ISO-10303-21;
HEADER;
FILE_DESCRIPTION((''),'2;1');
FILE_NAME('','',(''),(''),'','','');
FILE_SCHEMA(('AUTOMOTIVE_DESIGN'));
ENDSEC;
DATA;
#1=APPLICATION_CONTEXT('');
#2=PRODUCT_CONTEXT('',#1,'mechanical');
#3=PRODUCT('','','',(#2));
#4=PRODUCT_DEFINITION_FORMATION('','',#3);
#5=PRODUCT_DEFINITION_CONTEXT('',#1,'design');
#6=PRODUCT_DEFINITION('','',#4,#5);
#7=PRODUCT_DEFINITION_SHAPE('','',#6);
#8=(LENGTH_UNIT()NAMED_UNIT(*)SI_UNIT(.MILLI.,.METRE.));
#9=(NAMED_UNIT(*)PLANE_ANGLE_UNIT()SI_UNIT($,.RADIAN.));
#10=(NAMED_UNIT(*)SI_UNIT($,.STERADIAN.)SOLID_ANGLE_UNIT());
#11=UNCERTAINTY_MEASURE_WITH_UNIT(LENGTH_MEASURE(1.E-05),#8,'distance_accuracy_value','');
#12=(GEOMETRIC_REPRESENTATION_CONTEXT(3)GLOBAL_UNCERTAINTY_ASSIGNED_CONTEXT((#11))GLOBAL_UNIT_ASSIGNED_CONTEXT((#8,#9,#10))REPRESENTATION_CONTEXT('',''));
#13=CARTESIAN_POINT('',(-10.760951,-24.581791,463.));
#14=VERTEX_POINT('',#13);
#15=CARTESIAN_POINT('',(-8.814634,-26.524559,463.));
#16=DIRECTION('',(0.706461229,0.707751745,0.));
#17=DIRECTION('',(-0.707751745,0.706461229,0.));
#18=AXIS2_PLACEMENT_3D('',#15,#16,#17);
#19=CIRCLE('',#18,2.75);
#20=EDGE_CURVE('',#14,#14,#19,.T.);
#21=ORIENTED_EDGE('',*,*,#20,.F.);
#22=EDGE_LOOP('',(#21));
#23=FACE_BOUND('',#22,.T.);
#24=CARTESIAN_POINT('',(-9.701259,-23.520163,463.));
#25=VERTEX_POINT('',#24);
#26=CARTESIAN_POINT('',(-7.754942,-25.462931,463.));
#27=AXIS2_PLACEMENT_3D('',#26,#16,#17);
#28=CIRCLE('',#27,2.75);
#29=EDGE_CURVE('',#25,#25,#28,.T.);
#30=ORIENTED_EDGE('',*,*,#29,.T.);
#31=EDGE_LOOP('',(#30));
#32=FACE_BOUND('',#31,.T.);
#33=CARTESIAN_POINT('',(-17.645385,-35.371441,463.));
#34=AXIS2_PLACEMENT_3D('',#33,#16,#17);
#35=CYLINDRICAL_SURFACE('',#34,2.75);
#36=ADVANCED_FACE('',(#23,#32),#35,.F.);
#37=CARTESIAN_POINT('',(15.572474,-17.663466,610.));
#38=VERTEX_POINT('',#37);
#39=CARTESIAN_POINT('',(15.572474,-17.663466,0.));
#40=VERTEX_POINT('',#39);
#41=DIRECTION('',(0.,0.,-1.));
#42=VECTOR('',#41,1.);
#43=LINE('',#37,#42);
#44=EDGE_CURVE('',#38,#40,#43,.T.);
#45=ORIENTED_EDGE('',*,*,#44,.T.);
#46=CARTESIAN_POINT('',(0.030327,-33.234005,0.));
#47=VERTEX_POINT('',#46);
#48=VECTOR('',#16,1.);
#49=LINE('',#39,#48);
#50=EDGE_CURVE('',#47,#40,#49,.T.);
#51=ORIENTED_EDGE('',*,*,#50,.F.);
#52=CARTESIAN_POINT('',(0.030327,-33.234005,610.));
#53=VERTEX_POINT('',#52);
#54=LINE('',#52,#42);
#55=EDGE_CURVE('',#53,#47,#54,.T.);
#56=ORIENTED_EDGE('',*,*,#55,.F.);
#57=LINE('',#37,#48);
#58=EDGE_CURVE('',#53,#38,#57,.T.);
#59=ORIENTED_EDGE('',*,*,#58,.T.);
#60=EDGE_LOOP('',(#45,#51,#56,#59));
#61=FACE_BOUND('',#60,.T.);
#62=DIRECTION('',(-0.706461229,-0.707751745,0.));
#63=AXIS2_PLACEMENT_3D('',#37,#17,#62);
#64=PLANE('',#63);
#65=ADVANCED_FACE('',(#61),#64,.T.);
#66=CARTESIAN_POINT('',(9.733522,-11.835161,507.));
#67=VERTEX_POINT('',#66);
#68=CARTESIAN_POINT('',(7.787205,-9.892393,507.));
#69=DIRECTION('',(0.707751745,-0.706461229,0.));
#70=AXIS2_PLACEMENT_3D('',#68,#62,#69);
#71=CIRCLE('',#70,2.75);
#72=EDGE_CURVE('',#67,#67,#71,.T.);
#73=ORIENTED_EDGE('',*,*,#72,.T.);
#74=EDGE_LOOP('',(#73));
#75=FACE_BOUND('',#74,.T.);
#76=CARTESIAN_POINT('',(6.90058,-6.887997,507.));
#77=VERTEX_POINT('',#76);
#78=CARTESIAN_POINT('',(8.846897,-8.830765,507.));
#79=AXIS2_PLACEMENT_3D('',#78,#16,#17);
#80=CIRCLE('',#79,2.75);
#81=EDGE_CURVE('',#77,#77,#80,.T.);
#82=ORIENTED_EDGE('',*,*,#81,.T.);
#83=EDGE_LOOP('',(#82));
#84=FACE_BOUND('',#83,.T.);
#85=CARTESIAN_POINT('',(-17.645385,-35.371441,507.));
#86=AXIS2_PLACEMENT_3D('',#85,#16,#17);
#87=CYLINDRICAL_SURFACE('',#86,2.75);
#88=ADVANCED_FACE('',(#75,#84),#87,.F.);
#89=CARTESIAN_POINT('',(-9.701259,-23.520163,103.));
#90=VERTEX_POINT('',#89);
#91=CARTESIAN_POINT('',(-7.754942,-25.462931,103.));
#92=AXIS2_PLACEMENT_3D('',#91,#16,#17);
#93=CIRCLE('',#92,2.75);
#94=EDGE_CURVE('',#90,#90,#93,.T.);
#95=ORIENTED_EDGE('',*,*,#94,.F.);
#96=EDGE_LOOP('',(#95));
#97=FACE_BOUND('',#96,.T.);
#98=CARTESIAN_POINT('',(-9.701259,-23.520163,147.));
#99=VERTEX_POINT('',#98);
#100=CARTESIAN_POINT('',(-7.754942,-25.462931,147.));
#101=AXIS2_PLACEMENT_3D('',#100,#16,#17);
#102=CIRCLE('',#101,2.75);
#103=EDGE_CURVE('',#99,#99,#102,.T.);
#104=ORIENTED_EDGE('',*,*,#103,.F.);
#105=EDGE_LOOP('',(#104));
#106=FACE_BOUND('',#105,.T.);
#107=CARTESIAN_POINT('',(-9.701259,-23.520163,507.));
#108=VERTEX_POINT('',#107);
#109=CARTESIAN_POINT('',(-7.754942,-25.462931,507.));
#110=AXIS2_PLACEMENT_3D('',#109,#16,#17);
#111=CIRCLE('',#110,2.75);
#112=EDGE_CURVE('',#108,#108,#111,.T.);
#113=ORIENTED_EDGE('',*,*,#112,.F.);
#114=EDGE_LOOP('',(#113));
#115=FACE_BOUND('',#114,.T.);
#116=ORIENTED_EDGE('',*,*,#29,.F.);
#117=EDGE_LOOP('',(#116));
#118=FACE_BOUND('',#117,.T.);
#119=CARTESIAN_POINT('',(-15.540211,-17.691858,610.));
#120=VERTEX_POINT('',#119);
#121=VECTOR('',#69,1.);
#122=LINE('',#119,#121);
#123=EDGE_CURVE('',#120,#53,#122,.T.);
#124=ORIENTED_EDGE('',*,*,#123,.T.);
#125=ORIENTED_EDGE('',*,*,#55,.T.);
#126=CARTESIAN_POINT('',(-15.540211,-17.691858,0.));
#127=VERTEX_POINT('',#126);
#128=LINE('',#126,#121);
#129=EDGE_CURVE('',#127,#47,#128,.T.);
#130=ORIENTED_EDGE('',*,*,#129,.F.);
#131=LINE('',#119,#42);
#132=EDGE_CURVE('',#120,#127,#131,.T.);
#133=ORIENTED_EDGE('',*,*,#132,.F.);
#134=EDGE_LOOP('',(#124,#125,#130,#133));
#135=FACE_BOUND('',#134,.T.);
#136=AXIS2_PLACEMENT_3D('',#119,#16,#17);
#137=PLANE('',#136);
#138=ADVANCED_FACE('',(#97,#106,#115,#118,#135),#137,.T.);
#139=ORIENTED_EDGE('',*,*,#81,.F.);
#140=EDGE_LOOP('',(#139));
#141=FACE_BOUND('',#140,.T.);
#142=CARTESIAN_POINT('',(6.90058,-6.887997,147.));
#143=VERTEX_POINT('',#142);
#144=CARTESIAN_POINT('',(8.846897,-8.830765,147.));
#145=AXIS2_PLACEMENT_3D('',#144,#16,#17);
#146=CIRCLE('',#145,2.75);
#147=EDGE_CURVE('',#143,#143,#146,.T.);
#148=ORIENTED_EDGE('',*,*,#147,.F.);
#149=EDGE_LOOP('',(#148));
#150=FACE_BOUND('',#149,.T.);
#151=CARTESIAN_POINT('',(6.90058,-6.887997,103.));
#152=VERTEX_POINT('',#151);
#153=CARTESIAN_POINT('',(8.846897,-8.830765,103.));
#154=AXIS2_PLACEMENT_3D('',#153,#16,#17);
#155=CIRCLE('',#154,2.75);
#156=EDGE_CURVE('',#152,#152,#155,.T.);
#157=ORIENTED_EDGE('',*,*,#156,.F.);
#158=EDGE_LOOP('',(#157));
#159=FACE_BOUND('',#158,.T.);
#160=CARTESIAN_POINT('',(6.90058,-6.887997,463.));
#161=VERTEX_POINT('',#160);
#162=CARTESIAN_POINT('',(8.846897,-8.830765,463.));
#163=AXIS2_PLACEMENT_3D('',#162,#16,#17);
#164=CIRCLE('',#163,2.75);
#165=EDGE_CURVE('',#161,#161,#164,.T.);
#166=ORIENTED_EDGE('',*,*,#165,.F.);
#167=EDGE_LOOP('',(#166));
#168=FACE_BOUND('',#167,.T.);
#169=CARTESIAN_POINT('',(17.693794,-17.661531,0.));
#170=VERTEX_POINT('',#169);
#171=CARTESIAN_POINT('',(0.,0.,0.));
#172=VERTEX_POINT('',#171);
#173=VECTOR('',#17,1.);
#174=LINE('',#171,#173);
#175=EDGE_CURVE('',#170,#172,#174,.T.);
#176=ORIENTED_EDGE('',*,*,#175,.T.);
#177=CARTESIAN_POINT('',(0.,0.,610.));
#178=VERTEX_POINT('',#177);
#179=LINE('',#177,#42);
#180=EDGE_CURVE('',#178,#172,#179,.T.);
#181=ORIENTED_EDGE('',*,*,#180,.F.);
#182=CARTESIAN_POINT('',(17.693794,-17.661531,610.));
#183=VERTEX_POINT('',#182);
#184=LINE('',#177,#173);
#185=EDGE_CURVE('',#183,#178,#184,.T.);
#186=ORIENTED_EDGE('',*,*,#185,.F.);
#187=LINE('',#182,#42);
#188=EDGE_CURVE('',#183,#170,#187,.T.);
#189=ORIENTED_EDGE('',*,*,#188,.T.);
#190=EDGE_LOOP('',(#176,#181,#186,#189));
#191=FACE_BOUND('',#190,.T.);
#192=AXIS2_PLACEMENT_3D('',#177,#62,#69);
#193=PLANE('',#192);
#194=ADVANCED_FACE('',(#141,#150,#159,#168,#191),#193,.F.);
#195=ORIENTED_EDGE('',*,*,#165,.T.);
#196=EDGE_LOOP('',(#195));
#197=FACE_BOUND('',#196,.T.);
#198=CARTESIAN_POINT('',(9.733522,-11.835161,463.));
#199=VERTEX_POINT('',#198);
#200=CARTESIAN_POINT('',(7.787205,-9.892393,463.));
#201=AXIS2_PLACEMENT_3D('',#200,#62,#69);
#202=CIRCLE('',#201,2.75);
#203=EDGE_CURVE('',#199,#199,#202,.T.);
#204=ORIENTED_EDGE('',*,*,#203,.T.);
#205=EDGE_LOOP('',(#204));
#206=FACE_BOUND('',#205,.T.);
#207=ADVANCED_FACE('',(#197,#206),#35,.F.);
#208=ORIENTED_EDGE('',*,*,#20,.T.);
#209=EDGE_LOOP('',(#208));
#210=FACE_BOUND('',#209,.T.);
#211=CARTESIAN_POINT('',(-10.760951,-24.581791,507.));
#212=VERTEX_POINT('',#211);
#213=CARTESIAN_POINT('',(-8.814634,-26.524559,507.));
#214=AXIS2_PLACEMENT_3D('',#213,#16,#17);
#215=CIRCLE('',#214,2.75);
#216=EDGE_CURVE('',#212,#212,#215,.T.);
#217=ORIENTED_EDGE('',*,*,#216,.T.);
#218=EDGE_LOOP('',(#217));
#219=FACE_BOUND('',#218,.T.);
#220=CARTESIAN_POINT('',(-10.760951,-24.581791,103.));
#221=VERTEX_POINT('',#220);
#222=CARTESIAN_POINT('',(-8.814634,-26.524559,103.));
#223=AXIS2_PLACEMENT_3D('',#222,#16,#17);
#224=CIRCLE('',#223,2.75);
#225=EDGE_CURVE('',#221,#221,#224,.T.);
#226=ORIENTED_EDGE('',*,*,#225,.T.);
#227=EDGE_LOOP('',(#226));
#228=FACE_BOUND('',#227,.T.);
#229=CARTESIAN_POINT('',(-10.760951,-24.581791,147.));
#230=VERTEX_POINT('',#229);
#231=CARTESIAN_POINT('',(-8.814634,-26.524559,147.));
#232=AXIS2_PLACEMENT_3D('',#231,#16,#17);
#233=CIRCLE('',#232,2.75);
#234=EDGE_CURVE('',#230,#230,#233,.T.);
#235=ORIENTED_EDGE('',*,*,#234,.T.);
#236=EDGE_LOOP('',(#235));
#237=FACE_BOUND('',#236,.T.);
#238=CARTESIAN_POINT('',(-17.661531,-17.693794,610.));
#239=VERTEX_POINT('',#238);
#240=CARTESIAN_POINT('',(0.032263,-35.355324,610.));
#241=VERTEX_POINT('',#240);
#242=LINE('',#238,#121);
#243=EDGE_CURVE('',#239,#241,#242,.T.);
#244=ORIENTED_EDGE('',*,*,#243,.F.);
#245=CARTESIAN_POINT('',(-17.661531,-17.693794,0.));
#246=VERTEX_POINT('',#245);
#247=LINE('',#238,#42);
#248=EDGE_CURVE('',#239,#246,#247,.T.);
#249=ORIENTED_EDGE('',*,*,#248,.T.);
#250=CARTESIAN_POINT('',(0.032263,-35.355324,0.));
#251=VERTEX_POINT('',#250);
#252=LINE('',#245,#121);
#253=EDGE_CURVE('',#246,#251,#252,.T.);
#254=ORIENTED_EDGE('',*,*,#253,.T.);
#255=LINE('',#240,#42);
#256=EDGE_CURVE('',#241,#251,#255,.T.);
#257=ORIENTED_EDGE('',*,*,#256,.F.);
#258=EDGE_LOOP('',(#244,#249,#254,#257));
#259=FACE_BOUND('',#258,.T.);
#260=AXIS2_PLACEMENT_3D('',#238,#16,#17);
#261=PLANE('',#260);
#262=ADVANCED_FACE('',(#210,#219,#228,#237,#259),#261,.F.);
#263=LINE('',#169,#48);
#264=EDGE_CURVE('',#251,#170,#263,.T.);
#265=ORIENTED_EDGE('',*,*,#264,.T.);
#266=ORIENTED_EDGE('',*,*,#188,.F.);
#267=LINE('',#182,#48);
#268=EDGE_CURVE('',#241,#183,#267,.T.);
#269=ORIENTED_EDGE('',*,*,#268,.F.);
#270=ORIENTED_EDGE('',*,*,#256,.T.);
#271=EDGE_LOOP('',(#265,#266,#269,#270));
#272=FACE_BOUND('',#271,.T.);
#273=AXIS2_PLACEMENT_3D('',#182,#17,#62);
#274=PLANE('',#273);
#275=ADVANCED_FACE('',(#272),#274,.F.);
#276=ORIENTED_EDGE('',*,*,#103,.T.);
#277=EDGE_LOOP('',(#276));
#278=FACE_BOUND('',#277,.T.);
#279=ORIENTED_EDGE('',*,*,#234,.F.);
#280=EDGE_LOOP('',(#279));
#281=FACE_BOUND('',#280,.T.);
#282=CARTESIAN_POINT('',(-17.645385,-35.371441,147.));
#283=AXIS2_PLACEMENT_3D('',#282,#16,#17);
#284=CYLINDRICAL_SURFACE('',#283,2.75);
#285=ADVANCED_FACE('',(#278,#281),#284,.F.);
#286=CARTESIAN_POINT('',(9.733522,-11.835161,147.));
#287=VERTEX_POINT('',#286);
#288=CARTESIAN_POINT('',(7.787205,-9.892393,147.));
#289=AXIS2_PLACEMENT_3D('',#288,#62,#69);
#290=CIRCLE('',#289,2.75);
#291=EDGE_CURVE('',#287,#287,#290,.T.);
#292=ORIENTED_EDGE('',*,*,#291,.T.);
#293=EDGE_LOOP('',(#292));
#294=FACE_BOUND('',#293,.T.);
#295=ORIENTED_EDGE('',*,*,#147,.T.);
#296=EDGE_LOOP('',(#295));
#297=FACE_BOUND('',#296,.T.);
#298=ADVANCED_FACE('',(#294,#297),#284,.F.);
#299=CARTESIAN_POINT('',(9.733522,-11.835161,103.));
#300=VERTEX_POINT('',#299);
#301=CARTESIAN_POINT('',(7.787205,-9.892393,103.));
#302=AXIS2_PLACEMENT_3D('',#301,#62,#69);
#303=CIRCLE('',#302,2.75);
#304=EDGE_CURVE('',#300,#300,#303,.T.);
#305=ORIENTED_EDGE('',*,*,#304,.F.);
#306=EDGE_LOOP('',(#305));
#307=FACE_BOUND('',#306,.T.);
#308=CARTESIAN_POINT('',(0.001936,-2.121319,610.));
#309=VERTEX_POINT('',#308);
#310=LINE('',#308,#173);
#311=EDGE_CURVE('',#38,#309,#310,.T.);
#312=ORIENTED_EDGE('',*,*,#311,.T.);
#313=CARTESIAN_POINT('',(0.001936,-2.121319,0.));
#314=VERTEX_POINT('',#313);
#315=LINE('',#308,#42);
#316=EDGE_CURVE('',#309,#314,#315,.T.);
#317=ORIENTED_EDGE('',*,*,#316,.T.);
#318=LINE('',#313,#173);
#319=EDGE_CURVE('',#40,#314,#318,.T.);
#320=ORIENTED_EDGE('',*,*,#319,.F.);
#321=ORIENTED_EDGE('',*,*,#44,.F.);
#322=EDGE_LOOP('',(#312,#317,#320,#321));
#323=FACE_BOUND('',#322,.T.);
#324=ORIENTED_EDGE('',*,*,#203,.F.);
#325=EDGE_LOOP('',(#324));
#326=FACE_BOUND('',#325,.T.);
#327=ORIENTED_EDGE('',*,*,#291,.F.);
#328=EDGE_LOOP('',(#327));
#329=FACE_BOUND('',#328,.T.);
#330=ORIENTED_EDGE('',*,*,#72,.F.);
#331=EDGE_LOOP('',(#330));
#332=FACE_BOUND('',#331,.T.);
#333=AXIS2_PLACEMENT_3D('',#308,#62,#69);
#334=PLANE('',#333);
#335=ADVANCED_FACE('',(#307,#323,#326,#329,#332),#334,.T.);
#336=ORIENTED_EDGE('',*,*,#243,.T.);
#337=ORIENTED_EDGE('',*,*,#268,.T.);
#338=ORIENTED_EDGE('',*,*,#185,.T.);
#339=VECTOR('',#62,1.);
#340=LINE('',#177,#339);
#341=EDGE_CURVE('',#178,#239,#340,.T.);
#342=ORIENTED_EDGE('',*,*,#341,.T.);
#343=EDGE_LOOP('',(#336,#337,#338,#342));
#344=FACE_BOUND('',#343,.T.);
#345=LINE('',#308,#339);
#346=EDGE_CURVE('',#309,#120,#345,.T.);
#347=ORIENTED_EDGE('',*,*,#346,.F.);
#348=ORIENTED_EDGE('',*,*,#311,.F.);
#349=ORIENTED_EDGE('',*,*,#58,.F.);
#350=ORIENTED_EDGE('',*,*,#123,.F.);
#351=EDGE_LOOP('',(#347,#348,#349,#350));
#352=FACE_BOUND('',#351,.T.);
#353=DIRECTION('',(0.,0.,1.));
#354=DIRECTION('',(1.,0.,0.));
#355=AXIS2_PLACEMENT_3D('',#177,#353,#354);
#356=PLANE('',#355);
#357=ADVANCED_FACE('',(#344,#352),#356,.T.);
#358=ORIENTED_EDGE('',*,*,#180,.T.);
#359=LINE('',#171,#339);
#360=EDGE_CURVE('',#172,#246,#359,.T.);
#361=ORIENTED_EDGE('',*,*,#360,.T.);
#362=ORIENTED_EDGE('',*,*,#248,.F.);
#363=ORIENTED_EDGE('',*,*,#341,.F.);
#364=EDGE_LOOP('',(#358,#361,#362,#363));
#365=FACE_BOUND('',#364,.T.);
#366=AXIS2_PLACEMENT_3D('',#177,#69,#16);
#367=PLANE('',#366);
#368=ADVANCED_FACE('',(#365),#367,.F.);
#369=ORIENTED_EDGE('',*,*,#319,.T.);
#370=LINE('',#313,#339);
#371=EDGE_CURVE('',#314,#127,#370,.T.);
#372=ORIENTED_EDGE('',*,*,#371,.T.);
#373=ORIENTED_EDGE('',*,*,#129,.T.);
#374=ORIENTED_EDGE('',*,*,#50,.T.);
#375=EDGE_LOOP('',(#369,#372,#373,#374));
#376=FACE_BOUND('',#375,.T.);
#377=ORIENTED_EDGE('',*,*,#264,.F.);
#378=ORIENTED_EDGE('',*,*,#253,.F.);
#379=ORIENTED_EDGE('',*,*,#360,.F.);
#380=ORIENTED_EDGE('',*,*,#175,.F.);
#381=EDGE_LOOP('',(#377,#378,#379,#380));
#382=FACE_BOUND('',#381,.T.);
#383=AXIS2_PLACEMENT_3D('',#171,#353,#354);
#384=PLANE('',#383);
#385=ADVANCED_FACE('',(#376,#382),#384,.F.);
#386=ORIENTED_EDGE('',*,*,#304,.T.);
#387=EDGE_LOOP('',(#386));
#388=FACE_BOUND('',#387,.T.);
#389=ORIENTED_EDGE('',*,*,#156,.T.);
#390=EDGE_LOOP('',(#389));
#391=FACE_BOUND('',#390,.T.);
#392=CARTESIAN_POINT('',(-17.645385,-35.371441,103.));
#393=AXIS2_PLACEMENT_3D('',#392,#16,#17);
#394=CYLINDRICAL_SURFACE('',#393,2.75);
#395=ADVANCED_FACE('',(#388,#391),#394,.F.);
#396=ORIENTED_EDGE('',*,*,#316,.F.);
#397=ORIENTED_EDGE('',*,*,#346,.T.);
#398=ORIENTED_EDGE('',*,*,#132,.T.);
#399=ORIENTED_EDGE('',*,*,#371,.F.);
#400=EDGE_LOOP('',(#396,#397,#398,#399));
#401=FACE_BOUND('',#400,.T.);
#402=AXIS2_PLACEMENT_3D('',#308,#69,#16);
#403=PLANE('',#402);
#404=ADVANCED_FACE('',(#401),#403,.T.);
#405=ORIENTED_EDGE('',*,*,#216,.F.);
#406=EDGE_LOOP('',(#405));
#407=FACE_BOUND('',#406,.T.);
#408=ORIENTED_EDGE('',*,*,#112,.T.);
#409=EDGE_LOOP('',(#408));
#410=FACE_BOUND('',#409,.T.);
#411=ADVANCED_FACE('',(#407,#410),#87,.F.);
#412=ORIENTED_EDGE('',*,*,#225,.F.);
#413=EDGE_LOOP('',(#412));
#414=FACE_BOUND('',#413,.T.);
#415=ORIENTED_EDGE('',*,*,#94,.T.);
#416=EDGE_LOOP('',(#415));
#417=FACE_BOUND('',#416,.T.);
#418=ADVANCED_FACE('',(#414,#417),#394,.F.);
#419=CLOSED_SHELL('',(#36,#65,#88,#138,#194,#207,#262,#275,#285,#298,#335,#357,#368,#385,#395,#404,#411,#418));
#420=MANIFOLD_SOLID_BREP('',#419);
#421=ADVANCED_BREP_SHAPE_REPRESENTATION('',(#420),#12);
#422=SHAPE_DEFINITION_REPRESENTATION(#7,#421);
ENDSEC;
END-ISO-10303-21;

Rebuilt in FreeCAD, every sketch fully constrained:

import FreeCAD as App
import Part
import Sketcher
from FreeCAD import Vector


def add_polygon(sketch, points):
    """Adds a closed chain of lines whose ends are joined by coincident constraints."""
    first, n = sketch.GeometryCount, len(points)
    for a, b in zip(points, points[1:] + points[:1]):
        sketch.addGeometry(Part.LineSegment(App.Vector(*a, 0), App.Vector(*b, 0)), False)
    for i in range(n):
        sketch.addConstraint(Sketcher.Constraint("Coincident", first + i, 2, first + (i + 1) % n, 1))

doc = App.newDocument("Part")
body = doc.addObject("PartDesign::Body", "Body")

sketch1 = body.newObject("Sketcher::SketchObject", "Sketch")
sketch1.AttachmentSupport = (doc.getObject("XY_Plane"), [""])
sketch1.MapMode = "FlatFace"
add_polygon(sketch1, [(17.693794, -17.661531), (0, 0), (-17.661531, -17.693794), (0.032263, -35.355324)])
add_polygon(sketch1, [(0.001936, -2.121319), (15.572474, -17.663466), (0.030327, -33.234005), (-15.540211, -17.691858)])
sketch1.addConstraint(Sketcher.Constraint("Coincident", 0, 2, -1, 1))
sketch1.addConstraint(Sketcher.Constraint("Perpendicular", 0, 1))
sketch1.addConstraint(Sketcher.Constraint("Perpendicular", 1, 2))
sketch1.addConstraint(Sketcher.Constraint("Perpendicular", 2, 3))
sketch1.addConstraint(Sketcher.Constraint("Perpendicular", 3, 4))
sketch1.addConstraint(Sketcher.Constraint("Perpendicular", 4, 5))
sketch1.addConstraint(Sketcher.Constraint("Perpendicular", 5, 6))
sketch1.addConstraint(Sketcher.Constraint("Perpendicular", 6, 7))
sketch1.addConstraint(Sketcher.Constraint("Equal", 0, 1))
sketch1.addConstraint(Sketcher.Constraint("Equal", 4, 5))
sketch1.addConstraint(Sketcher.Constraint("Distance", 0, 25.0))
sketch1.addConstraint(Sketcher.Constraint("Distance", 4, 22.0))
sketch1.addConstraint(Sketcher.Constraint("DistanceX", 1, 2, -1, 1, 17.661531))
sketch1.addConstraint(Sketcher.Constraint("DistanceX", 6, 2, -1, 1, 15.540211))
sketch1.addConstraint(Sketcher.Constraint("DistanceY", 7, 2, -1, 1, 2.121319))
pad1 = body.newObject("PartDesign::Pad", "Pad")
pad1.Profile = sketch1
pad1.Length = 610

sketch2 = body.newObject("Sketcher::SketchObject", "Sketch001")
sketch2.Placement = App.Placement(Vector(0, 0, 0), App.Rotation(Vector(0.707751745, -0.706461229, 0), Vector(0, 0, -1.000000001), Vector(0.706461229, 0.707751745, 0), "ZXY"))
sketch2.addGeometry(Part.Circle(Vector(12.5, -463.000001, 0), Vector(0, 0, 1), 2.75), False)
sketch2.addGeometry(Part.Circle(Vector(12.5, -507.000001, 0), Vector(0, 0, 1), 2.75), False)
sketch2.addGeometry(Part.Circle(Vector(12.5, -103, 0), Vector(0, 0, 1), 2.75), False)
sketch2.addGeometry(Part.Circle(Vector(12.5, -147, 0), Vector(0, 0, 1), 2.75), False)
sketch2.addConstraint(Sketcher.Constraint("Equal", 0, 1))
sketch2.addConstraint(Sketcher.Constraint("Equal", 1, 2))
sketch2.addConstraint(Sketcher.Constraint("Equal", 2, 3))
sketch2.addConstraint(Sketcher.Constraint("Vertical", 0, 3, 1, 3))
sketch2.addConstraint(Sketcher.Constraint("Vertical", 1, 3, 2, 3))
sketch2.addConstraint(Sketcher.Constraint("Vertical", 2, 3, 3, 3))
sketch2.addConstraint(Sketcher.Constraint("Diameter", 0, 5.5))
sketch2.addConstraint(Sketcher.Constraint("DistanceY", 0, 3, -1, 1, 463.000001))
sketch2.addConstraint(Sketcher.Constraint("DistanceY", 1, 3, -1, 1, 507.000001))
sketch2.addConstraint(Sketcher.Constraint("DistanceY", 2, 3, -1, 1, 103.0))
sketch2.addConstraint(Sketcher.Constraint("DistanceY", 3, 3, -1, 1, 147.0))
sketch2.addConstraint(Sketcher.Constraint("DistanceX", -1, 1, 0, 3, 12.5))
pocket1 = body.newObject("PartDesign::Pocket", "Pocket")
pocket1.Profile = sketch2
pocket1.Type = "ThroughAll"

doc.recompute()
